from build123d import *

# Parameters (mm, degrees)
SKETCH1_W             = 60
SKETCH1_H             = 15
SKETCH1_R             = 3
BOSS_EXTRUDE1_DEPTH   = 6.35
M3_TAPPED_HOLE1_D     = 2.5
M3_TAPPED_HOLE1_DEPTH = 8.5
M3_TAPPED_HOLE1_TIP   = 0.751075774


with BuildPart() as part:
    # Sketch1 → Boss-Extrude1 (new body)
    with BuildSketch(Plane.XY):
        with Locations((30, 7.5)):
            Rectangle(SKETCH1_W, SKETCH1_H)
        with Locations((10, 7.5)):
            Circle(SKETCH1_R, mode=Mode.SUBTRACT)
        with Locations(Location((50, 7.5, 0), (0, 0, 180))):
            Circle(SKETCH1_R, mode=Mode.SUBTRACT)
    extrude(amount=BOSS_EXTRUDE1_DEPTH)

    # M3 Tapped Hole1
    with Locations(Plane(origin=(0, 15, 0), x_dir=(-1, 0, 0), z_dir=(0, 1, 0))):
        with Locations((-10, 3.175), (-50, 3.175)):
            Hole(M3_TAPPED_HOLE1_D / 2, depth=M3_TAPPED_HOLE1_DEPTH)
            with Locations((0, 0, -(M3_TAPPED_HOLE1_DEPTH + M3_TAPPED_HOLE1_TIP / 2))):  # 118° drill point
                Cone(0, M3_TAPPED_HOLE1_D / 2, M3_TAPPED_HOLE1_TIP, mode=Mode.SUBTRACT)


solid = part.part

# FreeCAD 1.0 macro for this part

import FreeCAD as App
import Part
import Sketcher

V = App.Vector
Q = App.Units.Quantity

doc = App.newDocument("Part")
params = doc.addObject("Spreadsheet::Sheet", "Params")
for row, (alias, value) in enumerate([
    ("sketch1_diameter", "6 mm"),
    ("sketch1_width", "60 mm"),
    ("sketch1_height", "15 mm"),
    ("pad1_length", "6.35 mm"),
    ("sketch2_diameter", "2.5 mm"),
    ("hole_diameter", "2.5 mm"),
    ("hole_depth", "8.5 mm"),
], start=1):
    params.set(f"A{row}", alias)
    params.set(f"B{row}", "=" + value)
    params.setAlias(f"B{row}", alias)

body = doc.addObject("PartDesign::Body", "Body")

# Sketch on XY plane
sketch1 = doc.addObject("Sketcher::SketchObject", "Sketch")
body.addObject(sketch1)
sketch1.AttachmentSupport = (doc.XY_Plane, [""])
sketch1.MapMode = "FlatFace"
sketch1.addGeometry(Part.LineSegment(V(0, 15, 0), V(0, 0, 0)), False)
sketch1.addGeometry(Part.LineSegment(V(0, 0, 0), V(60, 0, 0)), False)
sketch1.addGeometry(Part.LineSegment(V(60, 0, 0), V(60, 15, 0)), False)
sketch1.addGeometry(Part.LineSegment(V(60, 15, 0), V(0, 15, 0)), False)
sketch1.addGeometry(Part.Circle(V(10, 7.5, 0), V(0, 0, 1), 3), False)
sketch1.addGeometry(Part.Circle(V(50, 7.5, 0), V(0, 0, 1), 3), False)
sketch1.addConstraint(Sketcher.Constraint("Coincident", 0, 2, 1, 1))
sketch1.addConstraint(Sketcher.Constraint("Coincident", 1, 2, 2, 1))
sketch1.addConstraint(Sketcher.Constraint("Coincident", 2, 2, 3, 1))
sketch1.addConstraint(Sketcher.Constraint("Coincident", 3, 2, 0, 1))
sketch1.addConstraint(Sketcher.Constraint("Vertical", 0))
sketch1.addConstraint(Sketcher.Constraint("Horizontal", 1))
sketch1.addConstraint(Sketcher.Constraint("Vertical", 2))
sketch1.addConstraint(Sketcher.Constraint("Horizontal", 3))
sketch1.addConstraint(Sketcher.Constraint("Coincident", 0, 2, -1, 1))
sketch1.addConstraint(Sketcher.Constraint("Equal", 4, 5))
sketch1.addConstraint(Sketcher.Constraint("Horizontal", 4, 3, 5, 3))
sketch1.addConstraint(Sketcher.Constraint("Diameter", 4, Q("6 mm")))
sketch1.addConstraint(Sketcher.Constraint("DistanceX", 1, 1, 1, 2, Q("60 mm")))
sketch1.addConstraint(Sketcher.Constraint("DistanceY", 0, 2, 0, 1, Q("15 mm")))
sketch1.addConstraint(Sketcher.Constraint("DistanceX", -1, 1, 4, 3, Q("10 mm")))
sketch1.addConstraint(Sketcher.Constraint("DistanceX", -1, 1, 5, 3, Q("50 mm")))
sketch1.addConstraint(Sketcher.Constraint("DistanceY", -1, 1, 4, 3, Q("7.5 mm")))
sketch1.setExpression("Constraints[11]", "Params.sketch1_diameter")
sketch1.setExpression("Constraints[12]", "Params.sketch1_width")
sketch1.setExpression("Constraints[13]", "Params.sketch1_height")
pad1 = doc.addObject("PartDesign::Pad", "Pad")
body.addObject(pad1)
pad1.Profile = sketch1
pad1.setExpression("Length", "Params.pad1_length")

# Sketch on XZ plane
sketch2 = doc.addObject("Sketcher::SketchObject", "Sketch001")
body.addObject(sketch2)
sketch2.AttachmentSupport = (doc.XZ_Plane, [""])
sketch2.MapMode = "FlatFace"
sketch2.AttachmentOffset = App.Placement(V(0, 0, -15), App.Rotation())
sketch2.addGeometry(Part.Circle(V(10, 3.2, 0), V(0, 0, 1), 1.2), False)
sketch2.addGeometry(Part.Circle(V(50, 3.2, 0), V(0, 0, 1), 1.2), False)
sketch2.addConstraint(Sketcher.Constraint("Equal", 0, 1))
sketch2.addConstraint(Sketcher.Constraint("Horizontal", 0, 3, 1, 3))
sketch2.addConstraint(Sketcher.Constraint("Diameter", 0, Q("2.5 mm")))
sketch2.addConstraint(Sketcher.Constraint("DistanceX", -1, 1, 0, 3, Q("10 mm")))
sketch2.addConstraint(Sketcher.Constraint("DistanceX", -1, 1, 1, 3, Q("50 mm")))
sketch2.addConstraint(Sketcher.Constraint("DistanceY", -1, 1, 0, 3, Q("3.175 mm")))
sketch2.setExpression("Constraints[2]", "Params.sketch2_diameter")
doc.recompute()
hole = doc.addObject("PartDesign::Hole", "Hole")
body.addObject(hole)
hole.Profile = sketch2
hole.ThreadType = "None"
hole.setExpression("Diameter", "Params.hole_diameter")
hole.DepthType = "Dimension"
hole.setExpression("Depth", "Params.hole_depth")
hole.DrillPoint = "Angled"
hole.DrillPointAngle = 118
hole.Reversed = True

doc.recompute()
